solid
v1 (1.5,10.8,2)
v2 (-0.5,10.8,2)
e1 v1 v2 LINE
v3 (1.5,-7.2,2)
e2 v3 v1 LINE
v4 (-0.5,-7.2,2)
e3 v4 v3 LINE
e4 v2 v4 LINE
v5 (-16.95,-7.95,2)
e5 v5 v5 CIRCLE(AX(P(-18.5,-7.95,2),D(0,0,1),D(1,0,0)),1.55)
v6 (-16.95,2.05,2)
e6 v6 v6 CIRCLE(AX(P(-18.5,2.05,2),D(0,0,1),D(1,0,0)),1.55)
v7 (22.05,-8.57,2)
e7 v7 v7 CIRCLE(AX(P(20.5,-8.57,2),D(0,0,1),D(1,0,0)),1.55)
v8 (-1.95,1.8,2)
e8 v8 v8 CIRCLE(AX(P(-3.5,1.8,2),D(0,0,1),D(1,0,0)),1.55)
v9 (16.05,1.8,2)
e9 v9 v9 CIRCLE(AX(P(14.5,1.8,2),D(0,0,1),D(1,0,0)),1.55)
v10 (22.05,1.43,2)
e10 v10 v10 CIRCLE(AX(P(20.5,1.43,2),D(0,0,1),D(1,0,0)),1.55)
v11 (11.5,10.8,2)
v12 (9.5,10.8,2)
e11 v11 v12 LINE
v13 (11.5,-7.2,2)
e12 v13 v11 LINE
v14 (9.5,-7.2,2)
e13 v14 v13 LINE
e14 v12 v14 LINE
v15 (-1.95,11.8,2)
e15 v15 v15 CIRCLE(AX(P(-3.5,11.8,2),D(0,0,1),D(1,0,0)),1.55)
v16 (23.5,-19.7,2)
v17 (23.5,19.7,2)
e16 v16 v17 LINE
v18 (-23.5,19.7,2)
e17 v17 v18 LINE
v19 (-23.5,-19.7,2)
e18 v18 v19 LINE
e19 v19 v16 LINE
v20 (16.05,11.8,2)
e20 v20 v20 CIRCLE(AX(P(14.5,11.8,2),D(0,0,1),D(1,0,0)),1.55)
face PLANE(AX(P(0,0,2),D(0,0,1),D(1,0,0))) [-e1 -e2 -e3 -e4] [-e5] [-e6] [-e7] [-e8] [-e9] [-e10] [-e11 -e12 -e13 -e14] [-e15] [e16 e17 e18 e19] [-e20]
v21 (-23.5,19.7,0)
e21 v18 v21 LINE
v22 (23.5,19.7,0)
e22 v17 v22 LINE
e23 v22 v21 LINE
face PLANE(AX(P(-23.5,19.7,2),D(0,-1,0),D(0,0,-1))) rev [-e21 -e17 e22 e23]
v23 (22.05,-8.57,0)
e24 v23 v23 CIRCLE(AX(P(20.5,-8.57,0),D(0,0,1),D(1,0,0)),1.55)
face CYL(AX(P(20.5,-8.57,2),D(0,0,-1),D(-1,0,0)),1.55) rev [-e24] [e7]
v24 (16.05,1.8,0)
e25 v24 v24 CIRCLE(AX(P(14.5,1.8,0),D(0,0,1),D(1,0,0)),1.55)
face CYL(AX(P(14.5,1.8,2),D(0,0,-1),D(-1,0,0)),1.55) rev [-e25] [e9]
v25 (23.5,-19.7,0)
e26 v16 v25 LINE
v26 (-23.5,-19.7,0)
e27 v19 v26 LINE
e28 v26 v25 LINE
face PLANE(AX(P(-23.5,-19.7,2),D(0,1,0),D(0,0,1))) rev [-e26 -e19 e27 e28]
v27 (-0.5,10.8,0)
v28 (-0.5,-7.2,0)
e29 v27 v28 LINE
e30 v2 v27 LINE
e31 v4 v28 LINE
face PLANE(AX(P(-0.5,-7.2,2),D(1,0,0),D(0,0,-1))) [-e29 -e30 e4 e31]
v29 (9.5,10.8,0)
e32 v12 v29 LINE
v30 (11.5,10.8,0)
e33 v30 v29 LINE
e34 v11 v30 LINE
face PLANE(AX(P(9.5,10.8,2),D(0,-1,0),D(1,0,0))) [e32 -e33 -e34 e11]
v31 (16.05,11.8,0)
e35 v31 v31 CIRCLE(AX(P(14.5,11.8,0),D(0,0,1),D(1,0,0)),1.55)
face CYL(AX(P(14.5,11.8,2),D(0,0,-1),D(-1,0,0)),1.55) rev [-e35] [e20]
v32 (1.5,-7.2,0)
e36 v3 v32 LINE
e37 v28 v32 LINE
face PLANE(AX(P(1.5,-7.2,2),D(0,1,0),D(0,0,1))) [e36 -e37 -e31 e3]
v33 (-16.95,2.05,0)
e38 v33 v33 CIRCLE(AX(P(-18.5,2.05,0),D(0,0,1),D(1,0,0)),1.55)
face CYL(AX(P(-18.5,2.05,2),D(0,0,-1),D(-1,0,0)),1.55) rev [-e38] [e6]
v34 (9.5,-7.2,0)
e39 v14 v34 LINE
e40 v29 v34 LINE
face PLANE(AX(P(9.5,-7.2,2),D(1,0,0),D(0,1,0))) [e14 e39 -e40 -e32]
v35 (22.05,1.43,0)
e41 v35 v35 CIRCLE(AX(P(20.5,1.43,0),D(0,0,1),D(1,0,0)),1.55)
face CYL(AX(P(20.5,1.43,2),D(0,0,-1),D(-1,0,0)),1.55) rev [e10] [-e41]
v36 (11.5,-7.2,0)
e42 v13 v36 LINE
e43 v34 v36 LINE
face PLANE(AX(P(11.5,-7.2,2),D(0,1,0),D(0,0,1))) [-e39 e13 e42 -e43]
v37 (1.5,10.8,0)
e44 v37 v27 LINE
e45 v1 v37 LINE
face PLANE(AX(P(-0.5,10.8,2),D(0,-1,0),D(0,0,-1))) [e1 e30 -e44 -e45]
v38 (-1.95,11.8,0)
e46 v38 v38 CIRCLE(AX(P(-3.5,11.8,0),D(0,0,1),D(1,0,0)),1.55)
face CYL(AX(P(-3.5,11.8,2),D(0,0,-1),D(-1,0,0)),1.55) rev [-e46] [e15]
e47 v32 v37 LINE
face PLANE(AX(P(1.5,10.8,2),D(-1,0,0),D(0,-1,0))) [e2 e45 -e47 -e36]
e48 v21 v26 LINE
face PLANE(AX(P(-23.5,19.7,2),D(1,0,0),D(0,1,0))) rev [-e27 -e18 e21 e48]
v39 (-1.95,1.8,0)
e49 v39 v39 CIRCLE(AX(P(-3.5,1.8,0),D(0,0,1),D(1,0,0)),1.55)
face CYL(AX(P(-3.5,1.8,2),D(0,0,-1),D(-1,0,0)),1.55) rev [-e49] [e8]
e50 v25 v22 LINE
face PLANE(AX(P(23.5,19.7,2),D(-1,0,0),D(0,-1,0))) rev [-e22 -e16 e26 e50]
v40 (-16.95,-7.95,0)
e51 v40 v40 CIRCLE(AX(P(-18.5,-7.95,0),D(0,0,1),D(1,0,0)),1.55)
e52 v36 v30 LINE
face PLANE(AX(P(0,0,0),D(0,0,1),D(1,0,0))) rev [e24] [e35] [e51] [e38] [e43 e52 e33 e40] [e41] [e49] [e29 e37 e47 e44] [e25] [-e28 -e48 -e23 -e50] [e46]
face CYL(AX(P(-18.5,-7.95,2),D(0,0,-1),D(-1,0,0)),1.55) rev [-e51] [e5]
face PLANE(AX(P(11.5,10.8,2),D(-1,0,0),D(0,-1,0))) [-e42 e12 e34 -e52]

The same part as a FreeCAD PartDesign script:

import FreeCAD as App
import Part
import Sketcher
Q = App.Units.Quantity


def add_polygon(sketch, points):
    """Adds a closed chain of lines whose ends are joined by coincident constraints."""
    first, n = sketch.GeometryCount, len(points)
    for a, b in zip(points, points[1:] + points[:1]):
        sketch.addGeometry(Part.LineSegment(App.Vector(*a, 0), App.Vector(*b, 0)), False)
    for i in range(n):
        sketch.addConstraint(Sketcher.Constraint("Coincident", first + i, 2, first + (i + 1) % n, 1))

doc = App.newDocument("Part")
body = doc.addObject("PartDesign::Body", "Body")

sketch1 = body.newObject("Sketcher::SketchObject", "Sketch")
sketch1.AttachmentSupport = (doc.getObject("XY_Plane"), [""])
sketch1.MapMode = "FlatFace"
add_polygon(sketch1, [(-23.5, 19.7), (-23.5, -19.7), (23.5, -19.7), (23.5, 19.7)])
sketch1.addGeometry(Part.Circle(App.Vector(-18.5, -8, 0), App.Vector(0, 0, 1), 1.6), False)
sketch1.addGeometry(Part.Circle(App.Vector(20.5, -8.6, 0), App.Vector(0, 0, 1), 1.6), False)
sketch1.addGeometry(Part.Circle(App.Vector(20.5, 1.4, 0), App.Vector(0, 0, 1), 1.6), False)
sketch1.addGeometry(Part.Circle(App.Vector(-18.5, 2, 0), App.Vector(0, 0, 1), 1.6), False)
sketch1.addGeometry(Part.Circle(App.Vector(-3.5, 1.8, 0), App.Vector(0, 0, 1), 1.6), False)
add_polygon(sketch1, [(1.5, -7.2), (-0.5, -7.2), (-0.5, 10.8), (1.5, 10.8)])
sketch1.addGeometry(Part.Circle(App.Vector(-3.5, 11.8, 0), App.Vector(0, 0, 1), 1.6), False)
add_polygon(sketch1, [(11.5, -7.2), (9.5, -7.2), (9.5, 10.8), (11.5, 10.8)])
sketch1.addGeometry(Part.Circle(App.Vector(14.5, 1.8, 0), App.Vector(0, 0, 1), 1.6), False)
sketch1.addGeometry(Part.Circle(App.Vector(14.5, 11.8, 0), App.Vector(0, 0, 1), 1.6), False)
sketch1.addConstraint([
    Sketcher.Constraint("Vertical", 0),
    Sketcher.Constraint("Horizontal", 1),
    Sketcher.Constraint("Vertical", 2),
    Sketcher.Constraint("Horizontal", 3),
    Sketcher.Constraint("Horizontal", 9),
    Sketcher.Constraint("Vertical", 10),
    Sketcher.Constraint("Horizontal", 11),
    Sketcher.Constraint("Vertical", 12),
    Sketcher.Constraint("Horizontal", 14),
    Sketcher.Constraint("Vertical", 15),
    Sketcher.Constraint("Horizontal", 16),
    Sketcher.Constraint("Vertical", 17),
    Sketcher.Constraint("Equal", 4, 5),
    Sketcher.Constraint("Equal", 5, 6),
    Sketcher.Constraint("Equal", 6, 7),
    Sketcher.Constraint("Equal", 7, 8),
    Sketcher.Constraint("Equal", 8, 13),
    Sketcher.Constraint("Equal", 13, 18),
    Sketcher.Constraint("Equal", 18, 19),
    Sketcher.Constraint("Symmetric", 0, 2, 2, 2, -1, 1),
    Sketcher.Constraint("Horizontal", 8, 3, 18, 3),
    Sketcher.Constraint("Horizontal", 13, 3, 19, 3),
    Sketcher.Constraint("Horizontal", 12, 2, 14, 2),
    Sketcher.Constraint("Horizontal", 11, 2, 15, 2),
    Sketcher.Constraint("Vertical", 5, 3, 6, 3),
    Sketcher.Constraint("Vertical", 4, 3, 7, 3),
    Sketcher.Constraint("Vertical", 8, 3, 13, 3),
    Sketcher.Constraint("Vertical", 18, 3, 19, 3),
    Sketcher.Constraint("Equal", 11, 14),
    Sketcher.Constraint("Diameter", 4, Q("3.1 mm")),
    Sketcher.Constraint("DistanceX", 1, 1, 1, 2, Q("47 mm")),
    Sketcher.Constraint("DistanceX", 9, 2, 9, 1, Q("2 mm")),
    Sketcher.Constraint("DistanceY", 10, 1, 10, 2, Q("18 mm")),
    Sketcher.Constraint("DistanceY", 0, 2, 0, 1, Q("39.4 mm")),
    Sketcher.Constraint("DistanceX", 4, 3, 5, 3, Q("39 mm")),
    Sketcher.Constraint("DistanceY", 5, 3, 6, 3, Q("10 mm")),
    Sketcher.Constraint("DistanceY", 4, 3, 7, 3, Q("10 mm")),
    Sketcher.Constraint("DistanceX", 7, 3, 8, 3, Q("15 mm")),
    Sketcher.Constraint("DistanceY", 8, 3, 13, 3, Q("10 mm")),
    Sketcher.Constraint("DistanceX", 18, 3, 6, 3, Q("6 mm")),
    Sketcher.Constraint("DistanceX", 0, 2, 4, 3, Q("5 mm")),
    Sketcher.Constraint("DistanceX", 8, 3, 9, 2, Q("3 mm")),
    Sketcher.Constraint("DistanceY", 9, 2, 8, 3, Q("9 mm")),
    Sketcher.Constraint("DistanceX", 12, 2, 14, 2, Q("8 mm")),
    Sketcher.Constraint("DistanceY", -1, 1, 8, 3, Q("1.8 mm")),
    Sketcher.Constraint("DistanceY", 4, 3, -1, 1, Q("7.95 mm")),
    Sketcher.Constraint("DistanceY", 5, 3, -1, 1, Q("8.57 mm")),
])
pad1 = body.newObject("PartDesign::Pad", "Pad")
pad1.Profile = sketch1
pad1.Length = 2

doc.recompute()
